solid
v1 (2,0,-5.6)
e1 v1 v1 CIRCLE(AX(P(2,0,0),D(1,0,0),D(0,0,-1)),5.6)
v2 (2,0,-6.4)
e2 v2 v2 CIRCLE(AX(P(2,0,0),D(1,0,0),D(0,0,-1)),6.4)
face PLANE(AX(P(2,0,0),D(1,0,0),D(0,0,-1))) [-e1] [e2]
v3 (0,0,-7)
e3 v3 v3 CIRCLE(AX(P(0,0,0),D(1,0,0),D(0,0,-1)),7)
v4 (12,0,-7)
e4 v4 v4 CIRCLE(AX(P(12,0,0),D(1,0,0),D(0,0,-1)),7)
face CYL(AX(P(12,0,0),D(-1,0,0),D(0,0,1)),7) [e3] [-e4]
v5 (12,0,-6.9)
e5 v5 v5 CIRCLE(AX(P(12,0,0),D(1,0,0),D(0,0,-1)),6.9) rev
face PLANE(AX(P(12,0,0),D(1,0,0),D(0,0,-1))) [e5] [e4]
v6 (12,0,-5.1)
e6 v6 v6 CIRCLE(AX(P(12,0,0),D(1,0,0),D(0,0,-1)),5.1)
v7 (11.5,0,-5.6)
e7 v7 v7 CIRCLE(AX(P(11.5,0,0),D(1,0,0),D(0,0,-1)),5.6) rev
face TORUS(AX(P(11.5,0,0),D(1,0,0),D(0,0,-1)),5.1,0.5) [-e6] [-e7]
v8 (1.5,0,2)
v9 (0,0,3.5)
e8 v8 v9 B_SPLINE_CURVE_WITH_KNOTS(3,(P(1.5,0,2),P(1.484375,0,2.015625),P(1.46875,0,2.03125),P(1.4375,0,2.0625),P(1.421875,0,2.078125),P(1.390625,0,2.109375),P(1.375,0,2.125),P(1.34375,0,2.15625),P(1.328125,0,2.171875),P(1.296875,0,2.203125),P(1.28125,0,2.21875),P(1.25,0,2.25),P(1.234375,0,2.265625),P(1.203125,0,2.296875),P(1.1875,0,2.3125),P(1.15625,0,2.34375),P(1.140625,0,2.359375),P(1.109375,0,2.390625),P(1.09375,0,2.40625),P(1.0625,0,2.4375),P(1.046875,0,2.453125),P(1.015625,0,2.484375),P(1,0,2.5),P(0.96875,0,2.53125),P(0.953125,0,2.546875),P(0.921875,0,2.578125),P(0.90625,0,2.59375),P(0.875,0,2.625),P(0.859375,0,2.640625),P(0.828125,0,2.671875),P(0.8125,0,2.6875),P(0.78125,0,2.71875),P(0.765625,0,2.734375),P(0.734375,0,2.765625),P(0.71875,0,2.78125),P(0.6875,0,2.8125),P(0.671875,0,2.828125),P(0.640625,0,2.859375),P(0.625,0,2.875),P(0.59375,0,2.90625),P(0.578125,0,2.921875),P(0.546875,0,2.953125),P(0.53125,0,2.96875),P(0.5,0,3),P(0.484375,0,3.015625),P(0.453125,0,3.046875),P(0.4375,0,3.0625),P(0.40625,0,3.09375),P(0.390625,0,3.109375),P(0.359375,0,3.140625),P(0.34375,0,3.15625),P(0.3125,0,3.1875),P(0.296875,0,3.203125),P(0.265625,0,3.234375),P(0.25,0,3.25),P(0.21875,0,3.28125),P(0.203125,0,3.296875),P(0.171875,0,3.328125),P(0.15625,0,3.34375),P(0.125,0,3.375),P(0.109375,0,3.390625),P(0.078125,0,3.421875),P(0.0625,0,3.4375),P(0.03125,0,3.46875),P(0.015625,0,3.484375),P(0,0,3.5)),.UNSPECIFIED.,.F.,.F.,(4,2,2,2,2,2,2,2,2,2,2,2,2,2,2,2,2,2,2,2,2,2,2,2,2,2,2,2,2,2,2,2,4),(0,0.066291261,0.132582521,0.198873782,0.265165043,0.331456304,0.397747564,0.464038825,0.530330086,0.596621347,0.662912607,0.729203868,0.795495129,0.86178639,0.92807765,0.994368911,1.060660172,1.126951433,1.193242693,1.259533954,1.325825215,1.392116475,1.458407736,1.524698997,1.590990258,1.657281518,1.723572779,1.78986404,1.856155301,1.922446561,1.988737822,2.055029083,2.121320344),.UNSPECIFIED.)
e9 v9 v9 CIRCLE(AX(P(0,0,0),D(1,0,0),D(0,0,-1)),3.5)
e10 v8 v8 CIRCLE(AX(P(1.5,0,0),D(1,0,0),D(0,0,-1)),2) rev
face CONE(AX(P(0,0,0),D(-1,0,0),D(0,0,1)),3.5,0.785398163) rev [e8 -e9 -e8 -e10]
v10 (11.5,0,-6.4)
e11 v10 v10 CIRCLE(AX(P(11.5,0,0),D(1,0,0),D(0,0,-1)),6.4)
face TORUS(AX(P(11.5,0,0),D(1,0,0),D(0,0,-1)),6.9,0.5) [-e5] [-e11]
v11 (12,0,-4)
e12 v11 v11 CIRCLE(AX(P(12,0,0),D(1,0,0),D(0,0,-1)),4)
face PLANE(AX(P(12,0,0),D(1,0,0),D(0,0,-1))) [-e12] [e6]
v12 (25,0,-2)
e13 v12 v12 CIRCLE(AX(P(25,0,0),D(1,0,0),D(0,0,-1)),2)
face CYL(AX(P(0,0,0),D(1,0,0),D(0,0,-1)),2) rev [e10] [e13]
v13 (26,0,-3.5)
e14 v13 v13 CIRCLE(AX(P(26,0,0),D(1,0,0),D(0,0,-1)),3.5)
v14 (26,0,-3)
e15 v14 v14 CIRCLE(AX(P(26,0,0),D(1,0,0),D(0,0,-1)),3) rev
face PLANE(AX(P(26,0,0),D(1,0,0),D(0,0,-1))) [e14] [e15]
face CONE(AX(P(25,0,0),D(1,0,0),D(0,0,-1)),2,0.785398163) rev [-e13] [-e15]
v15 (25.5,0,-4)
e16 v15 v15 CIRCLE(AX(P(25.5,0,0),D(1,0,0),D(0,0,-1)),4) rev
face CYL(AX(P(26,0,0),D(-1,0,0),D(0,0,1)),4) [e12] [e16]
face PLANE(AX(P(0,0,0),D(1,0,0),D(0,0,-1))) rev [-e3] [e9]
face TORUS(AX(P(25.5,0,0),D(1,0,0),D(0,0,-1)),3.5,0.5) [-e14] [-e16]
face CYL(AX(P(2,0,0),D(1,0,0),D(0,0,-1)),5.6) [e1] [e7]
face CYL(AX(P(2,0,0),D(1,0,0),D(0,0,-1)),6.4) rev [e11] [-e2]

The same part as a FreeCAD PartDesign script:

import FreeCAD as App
import Part
import Sketcher

V = App.Vector


def edges_at(feature, points):
    """Names of the edges that pass closest to the given points."""
    edges = feature.Shape.Edges
    near = lambda p: min(range(len(edges)), key=lambda i: edges[i].distToShape(Part.Vertex(*p))[0])
    return sorted({f"Edge{near(p) + 1}" for p in points})

doc = App.newDocument("Part")
body = doc.addObject("PartDesign::Body", "Body")

sketch1 = body.newObject("Sketcher::SketchObject", "Sketch")
sketch1.AttachmentSupport = (doc.getObject("YZ_Plane"), [""])
sketch1.MapMode = "FlatFace"
sketch1.addGeometry(Part.Circle(V(0, 0, 0), V(0, 0, 1), 7), False)
sketch1.addConstraint([
    Sketcher.Constraint("Coincident", 0, 3, -1, 1),
    Sketcher.Constraint("Diameter", 0, 14.0),
])
pad1 = body.newObject("PartDesign::Pad", "Pad")
pad1.Profile = sketch1
pad1.Length = 12

sketch2 = body.newObject("Sketcher::SketchObject", "Sketch001")
sketch2.AttachmentSupport = (doc.getObject("YZ_Plane"), [""])
sketch2.MapMode = "FlatFace"
sketch2.AttachmentOffset = App.Placement(V(0, 0, 12), App.Rotation())
sketch2.addGeometry([
    Part.Circle(V(0, 0, 0), V(0, 0, 1), 6.4),
    Part.Circle(V(0, 0, 0), V(0, 0, 1), 5.6),
], False)
sketch2.addConstraint([
    Sketcher.Constraint("Coincident", 0, 3, -1, 1),
    Sketcher.Constraint("Coincident", 1, 3, -1, 1),
    Sketcher.Constraint("Diameter", 0, 12.8),
    Sketcher.Constraint("Diameter", 1, 11.2),
])
pocket1 = body.newObject("PartDesign::Pocket", "Pocket")
pocket1.Profile = sketch2
pocket1.Length = 10

sketch3 = body.newObject("Sketcher::SketchObject", "Sketch002")
sketch3.AttachmentSupport = (doc.getObject("YZ_Plane"), [""])
sketch3.MapMode = "FlatFace"
sketch3.AttachmentOffset = App.Placement(V(0, 0, 12), App.Rotation())
sketch3.addGeometry(Part.Circle(V(0, 0, 0), V(0, 0, 1), 4), False)
sketch3.addConstraint([
    Sketcher.Constraint("Coincident", 0, 3, -1, 1),
    Sketcher.Constraint("Diameter", 0, 8.0),
])
pad2 = body.newObject("PartDesign::Pad", "Pad001")
pad2.Profile = sketch3
pad2.Length = 14

sketch4 = body.newObject("Sketcher::SketchObject", "Sketch003")
sketch4.AttachmentSupport = (doc.getObject("YZ_Plane"), [""])
sketch4.MapMode = "FlatFace"
sketch4.AttachmentOffset = App.Placement(V(0, 0, 26), App.Rotation())
sketch4.addGeometry(Part.Circle(V(0, 0, 0), V(0, 0, 1), 2), False)
sketch4.addConstraint([
    Sketcher.Constraint("Coincident", 0, 3, -1, 1),
    Sketcher.Constraint("Diameter", 0, 4.0),
])
pocket2 = body.newObject("PartDesign::Pocket", "Pocket001")
pocket2.Profile = sketch4
pocket2.Type = "ThroughAll"
doc.recompute()

chamfer = body.newObject("PartDesign::Chamfer", "Chamfer")
chamfer.Base = (pocket2, edges_at(pocket2, [(0, 0, 2)]))
chamfer.Size = 1.5
doc.recompute()

chamfer2 = body.newObject("PartDesign::Chamfer", "Chamfer001")
chamfer2.Base = (chamfer, edges_at(chamfer, [(26, 0, 2)]))
chamfer2.Size = 1
doc.recompute()

fillet = body.newObject("PartDesign::Fillet", "Fillet")
fillet.Base = (chamfer2, edges_at(chamfer2, [(26, 0, 4), (12, 0, 5.6), (12, 0, 6.4)]))
fillet.Radius = 0.5

doc.recompute()
